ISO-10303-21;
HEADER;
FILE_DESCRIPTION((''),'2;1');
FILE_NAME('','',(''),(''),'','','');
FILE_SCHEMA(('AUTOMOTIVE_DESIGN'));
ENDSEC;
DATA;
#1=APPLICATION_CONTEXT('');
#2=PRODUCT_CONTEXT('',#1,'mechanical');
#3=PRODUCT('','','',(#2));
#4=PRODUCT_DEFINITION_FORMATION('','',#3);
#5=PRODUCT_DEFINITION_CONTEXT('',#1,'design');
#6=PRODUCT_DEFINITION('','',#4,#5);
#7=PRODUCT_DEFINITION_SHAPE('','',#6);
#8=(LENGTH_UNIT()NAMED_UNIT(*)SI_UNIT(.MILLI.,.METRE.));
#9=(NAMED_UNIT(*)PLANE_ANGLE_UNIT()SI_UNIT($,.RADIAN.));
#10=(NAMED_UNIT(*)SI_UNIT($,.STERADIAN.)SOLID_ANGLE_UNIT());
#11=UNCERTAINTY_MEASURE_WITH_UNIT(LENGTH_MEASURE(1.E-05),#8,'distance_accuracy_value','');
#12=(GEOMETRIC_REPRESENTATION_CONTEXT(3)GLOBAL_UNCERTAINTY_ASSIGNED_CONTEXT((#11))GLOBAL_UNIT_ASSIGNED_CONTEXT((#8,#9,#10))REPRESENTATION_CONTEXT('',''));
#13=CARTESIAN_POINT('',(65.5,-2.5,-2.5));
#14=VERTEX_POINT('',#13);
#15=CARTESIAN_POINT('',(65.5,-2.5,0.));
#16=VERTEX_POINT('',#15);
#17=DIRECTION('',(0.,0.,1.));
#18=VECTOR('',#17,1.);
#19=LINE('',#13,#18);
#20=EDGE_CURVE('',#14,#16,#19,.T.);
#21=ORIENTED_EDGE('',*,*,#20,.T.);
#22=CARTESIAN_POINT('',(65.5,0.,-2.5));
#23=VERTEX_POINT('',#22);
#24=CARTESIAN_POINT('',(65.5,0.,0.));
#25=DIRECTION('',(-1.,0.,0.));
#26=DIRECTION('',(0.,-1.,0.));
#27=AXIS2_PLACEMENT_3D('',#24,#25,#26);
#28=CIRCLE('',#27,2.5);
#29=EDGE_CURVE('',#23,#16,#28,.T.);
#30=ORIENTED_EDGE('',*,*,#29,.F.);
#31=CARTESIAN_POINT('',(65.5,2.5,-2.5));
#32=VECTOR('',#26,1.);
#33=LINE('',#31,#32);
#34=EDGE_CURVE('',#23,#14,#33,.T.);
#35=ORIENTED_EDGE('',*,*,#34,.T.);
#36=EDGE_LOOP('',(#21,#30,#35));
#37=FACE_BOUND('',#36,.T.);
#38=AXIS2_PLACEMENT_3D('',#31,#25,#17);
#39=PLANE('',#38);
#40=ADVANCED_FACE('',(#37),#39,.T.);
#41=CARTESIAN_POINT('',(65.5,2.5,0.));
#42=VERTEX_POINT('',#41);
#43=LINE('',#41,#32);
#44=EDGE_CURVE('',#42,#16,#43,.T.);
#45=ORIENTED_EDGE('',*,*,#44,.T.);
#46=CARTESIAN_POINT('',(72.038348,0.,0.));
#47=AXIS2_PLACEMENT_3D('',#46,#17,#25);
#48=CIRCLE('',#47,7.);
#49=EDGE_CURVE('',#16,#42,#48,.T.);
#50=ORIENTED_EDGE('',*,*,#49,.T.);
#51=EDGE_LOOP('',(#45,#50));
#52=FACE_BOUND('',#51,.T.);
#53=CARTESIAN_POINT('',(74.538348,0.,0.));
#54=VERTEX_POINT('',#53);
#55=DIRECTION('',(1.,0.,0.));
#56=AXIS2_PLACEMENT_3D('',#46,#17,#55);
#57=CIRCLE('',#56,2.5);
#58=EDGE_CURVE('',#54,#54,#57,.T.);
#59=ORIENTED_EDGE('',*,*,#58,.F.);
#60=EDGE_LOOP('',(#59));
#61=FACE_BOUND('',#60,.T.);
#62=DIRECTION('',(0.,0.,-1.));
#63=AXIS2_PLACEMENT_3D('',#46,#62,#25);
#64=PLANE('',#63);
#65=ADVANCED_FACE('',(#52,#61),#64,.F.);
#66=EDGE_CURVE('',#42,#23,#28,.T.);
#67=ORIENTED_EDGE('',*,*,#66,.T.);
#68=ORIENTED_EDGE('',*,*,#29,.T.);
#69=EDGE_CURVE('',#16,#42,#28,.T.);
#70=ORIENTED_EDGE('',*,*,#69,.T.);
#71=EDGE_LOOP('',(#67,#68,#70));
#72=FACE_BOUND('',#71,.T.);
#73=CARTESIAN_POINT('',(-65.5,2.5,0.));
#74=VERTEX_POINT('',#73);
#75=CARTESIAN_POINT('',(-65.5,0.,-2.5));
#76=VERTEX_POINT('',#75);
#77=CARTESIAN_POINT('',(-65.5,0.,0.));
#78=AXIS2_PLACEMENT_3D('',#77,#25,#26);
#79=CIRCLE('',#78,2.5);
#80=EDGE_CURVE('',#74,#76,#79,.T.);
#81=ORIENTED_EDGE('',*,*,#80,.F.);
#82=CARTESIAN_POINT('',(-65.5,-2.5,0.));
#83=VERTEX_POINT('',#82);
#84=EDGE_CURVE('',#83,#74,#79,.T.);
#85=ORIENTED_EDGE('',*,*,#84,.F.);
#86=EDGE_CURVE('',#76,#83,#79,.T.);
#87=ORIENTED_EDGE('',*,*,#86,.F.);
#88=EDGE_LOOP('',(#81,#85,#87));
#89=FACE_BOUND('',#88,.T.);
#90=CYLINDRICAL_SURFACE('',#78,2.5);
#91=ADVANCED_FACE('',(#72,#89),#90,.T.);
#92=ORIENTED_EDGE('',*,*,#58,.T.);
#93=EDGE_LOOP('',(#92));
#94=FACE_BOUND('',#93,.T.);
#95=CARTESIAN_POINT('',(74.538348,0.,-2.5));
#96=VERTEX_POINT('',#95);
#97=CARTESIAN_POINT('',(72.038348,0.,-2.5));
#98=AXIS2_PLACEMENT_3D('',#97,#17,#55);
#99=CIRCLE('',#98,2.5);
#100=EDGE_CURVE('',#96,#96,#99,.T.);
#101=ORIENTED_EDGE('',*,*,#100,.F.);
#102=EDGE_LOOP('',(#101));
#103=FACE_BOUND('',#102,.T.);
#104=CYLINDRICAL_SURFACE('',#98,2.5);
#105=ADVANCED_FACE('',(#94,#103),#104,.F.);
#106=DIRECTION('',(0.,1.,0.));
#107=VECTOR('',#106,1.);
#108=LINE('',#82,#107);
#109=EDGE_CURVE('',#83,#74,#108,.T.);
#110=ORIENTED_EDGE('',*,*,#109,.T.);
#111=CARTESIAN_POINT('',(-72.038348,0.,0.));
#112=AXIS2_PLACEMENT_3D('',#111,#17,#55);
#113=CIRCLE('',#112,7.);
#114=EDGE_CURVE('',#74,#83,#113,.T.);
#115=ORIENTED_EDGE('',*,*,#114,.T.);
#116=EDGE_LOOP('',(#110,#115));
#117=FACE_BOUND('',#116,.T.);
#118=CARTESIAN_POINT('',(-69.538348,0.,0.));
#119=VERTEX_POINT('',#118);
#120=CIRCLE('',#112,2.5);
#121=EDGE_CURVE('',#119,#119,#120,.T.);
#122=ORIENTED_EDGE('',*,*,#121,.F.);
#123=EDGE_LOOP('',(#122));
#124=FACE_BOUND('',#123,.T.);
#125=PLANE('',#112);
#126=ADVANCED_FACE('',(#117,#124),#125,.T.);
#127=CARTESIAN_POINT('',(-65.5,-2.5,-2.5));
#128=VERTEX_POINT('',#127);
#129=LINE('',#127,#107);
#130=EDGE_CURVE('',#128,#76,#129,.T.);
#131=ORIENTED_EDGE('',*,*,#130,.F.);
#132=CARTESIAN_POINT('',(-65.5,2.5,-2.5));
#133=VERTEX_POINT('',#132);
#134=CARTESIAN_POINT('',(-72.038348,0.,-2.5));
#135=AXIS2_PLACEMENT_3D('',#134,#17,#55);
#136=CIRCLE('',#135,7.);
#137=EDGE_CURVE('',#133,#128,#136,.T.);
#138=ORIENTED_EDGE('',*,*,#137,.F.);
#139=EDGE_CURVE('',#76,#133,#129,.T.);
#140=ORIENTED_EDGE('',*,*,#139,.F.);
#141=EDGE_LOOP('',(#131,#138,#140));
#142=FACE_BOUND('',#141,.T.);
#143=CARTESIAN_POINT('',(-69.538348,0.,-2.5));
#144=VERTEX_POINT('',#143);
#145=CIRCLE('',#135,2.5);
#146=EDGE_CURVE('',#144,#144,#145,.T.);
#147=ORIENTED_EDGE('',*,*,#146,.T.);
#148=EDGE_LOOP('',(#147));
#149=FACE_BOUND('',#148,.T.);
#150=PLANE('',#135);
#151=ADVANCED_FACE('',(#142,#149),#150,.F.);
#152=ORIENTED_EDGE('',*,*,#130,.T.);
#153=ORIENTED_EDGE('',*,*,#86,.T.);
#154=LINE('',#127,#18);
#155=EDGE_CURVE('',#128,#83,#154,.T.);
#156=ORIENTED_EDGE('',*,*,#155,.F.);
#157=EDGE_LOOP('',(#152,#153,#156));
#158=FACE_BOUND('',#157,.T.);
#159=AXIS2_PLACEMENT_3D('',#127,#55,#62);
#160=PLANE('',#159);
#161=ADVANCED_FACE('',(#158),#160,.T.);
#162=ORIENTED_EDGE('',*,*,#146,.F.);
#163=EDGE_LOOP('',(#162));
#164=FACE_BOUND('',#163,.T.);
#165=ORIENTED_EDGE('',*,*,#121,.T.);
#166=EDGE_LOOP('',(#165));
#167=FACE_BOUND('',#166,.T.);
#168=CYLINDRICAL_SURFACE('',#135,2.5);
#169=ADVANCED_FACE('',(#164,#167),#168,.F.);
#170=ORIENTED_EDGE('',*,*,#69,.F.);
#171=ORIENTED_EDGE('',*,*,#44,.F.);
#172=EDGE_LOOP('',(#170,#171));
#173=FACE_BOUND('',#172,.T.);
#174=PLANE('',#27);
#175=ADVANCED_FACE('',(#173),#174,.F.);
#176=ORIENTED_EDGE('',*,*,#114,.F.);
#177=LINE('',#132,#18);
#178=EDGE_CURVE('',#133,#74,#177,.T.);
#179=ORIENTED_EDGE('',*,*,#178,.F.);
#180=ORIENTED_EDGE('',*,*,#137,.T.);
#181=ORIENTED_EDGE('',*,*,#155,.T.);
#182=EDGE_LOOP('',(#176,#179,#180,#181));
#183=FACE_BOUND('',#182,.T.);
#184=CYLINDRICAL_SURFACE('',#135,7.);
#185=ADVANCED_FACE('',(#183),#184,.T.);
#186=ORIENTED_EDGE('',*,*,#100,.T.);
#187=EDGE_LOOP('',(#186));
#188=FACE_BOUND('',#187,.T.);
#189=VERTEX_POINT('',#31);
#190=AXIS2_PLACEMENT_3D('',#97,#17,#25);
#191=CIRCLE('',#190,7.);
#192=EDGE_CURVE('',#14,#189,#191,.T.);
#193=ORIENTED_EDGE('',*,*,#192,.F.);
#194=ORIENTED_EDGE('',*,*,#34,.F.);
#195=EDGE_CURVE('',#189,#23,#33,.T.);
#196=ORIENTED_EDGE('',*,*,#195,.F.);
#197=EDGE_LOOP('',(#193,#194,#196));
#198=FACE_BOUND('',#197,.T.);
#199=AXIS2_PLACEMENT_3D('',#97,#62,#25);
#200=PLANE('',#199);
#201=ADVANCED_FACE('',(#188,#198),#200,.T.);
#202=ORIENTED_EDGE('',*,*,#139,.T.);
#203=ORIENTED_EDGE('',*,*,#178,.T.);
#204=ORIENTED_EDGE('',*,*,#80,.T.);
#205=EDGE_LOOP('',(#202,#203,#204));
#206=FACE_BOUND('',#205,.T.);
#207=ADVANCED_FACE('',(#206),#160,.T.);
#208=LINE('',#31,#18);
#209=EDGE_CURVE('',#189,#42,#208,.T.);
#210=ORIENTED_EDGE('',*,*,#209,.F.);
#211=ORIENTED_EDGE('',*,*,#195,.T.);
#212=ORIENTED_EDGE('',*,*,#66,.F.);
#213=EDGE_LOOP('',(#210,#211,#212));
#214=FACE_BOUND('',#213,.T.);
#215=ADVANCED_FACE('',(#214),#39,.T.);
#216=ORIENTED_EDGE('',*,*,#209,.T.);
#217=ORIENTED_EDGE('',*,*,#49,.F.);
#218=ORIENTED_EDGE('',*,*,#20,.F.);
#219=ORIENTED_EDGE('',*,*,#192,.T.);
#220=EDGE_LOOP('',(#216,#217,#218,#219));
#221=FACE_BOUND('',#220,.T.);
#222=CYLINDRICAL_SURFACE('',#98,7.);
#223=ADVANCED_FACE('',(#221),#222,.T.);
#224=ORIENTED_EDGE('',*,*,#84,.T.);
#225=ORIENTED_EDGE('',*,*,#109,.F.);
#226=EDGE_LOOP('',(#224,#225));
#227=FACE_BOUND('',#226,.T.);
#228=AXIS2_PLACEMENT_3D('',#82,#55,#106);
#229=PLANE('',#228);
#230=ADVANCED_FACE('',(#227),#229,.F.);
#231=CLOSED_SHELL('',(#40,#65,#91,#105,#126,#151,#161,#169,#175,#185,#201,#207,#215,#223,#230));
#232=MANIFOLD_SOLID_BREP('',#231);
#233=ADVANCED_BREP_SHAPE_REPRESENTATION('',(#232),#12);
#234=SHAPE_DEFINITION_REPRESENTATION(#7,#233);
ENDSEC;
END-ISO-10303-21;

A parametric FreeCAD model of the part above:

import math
import FreeCAD as App
import Part
import Sketcher

doc = App.newDocument("Part")
body = doc.addObject("PartDesign::Body", "Body")

# Sketch on XY plane
sketch1 = body.newObject("Sketcher::SketchObject", "Sketch")
sketch1.AttachmentSupport = (doc.getObject("XY_Plane"), [""])
sketch1.MapMode = "FlatFace"
sketch1.addGeometry([
    Part.LineSegment(App.Vector(-65.5, 2.5, 0), App.Vector(-65.5, 0, 0)),
    Part.LineSegment(App.Vector(-65.5, 0, 0), App.Vector(65.5, 0, 0)),
    Part.LineSegment(App.Vector(65.5, 0, 0), App.Vector(65.5, 2.5, 0)),
    Part.LineSegment(App.Vector(65.5, 2.5, 0), App.Vector(-65.5, 2.5, 0)),
], False)
sketch1.addConstraint([
    Sketcher.Constraint("Coincident", 0, 2, 1, 1),
    Sketcher.Constraint("Coincident", 1, 2, 2, 1),
    Sketcher.Constraint("Coincident", 2, 2, 3, 1),
    Sketcher.Constraint("Coincident", 3, 2, 0, 1),
    Sketcher.Constraint("Vertical", 0),
    Sketcher.Constraint("Horizontal", 1),
    Sketcher.Constraint("Vertical", 2),
    Sketcher.Constraint("Horizontal", 3),
    Sketcher.Constraint("Symmetric", 0, 2, 1, 2, -1, 1),
    Sketcher.Constraint("DistanceX", 1, 1, 1, 2, 131.0),
    Sketcher.Constraint("DistanceY", 0, 2, 0, 1, 2.5),
])
revolution = body.newObject("PartDesign::Revolution", "Revolution")
revolution.Profile = sketch1
revolution.ReferenceAxis = (sketch1, ["H_Axis"])
revolution.Angle = 360

# Sketch on XY plane
sketch2 = body.newObject("Sketcher::SketchObject", "Sketch001")
sketch2.AttachmentSupport = (doc.getObject("XY_Plane"), [""])
sketch2.MapMode = "FlatFace"
sketch2.addGeometry([
    Part.LineSegment(App.Vector(65.5, 2.5, 0), App.Vector(65.5, -2.5, 0)),  # 0
    Part.ArcOfCircle(Part.Circle(App.Vector(72.038348, 0, 0), App.Vector(0, 0, 1), 7), math.radians(-159.075168), math.radians(159.075168)),  # 1
    Part.Circle(App.Vector(72.038348, 0, 0), App.Vector(0, 0, 1), 2.5),  # 2
    Part.LineSegment(App.Vector(-65.5, -2.5, 0), App.Vector(-65.5, 2.5, 0)),  # 3
    Part.ArcOfCircle(Part.Circle(App.Vector(-72.038348, 0, 0), App.Vector(0, 0, 1), 7), math.radians(20.924832), math.radians(339.075168)),  # 4
    Part.Circle(App.Vector(-72.038348, 0, 0), App.Vector(0, 0, 1), 2.5),  # 5
], False)
sketch2.addConstraint([
    Sketcher.Constraint("Coincident", 0, 1, 1, 2),
    Sketcher.Constraint("Coincident", 1, 1, 0, 2),
    Sketcher.Constraint("Coincident", 3, 1, 4, 2),
    Sketcher.Constraint("Coincident", 4, 1, 3, 2),
    Sketcher.Constraint("Vertical", 0),
    Sketcher.Constraint("Vertical", 3),
    Sketcher.Constraint("Coincident", 2, 3, 1, 3),
    Sketcher.Constraint("Coincident", 5, 3, 4, 3),
    Sketcher.Constraint("Equal", 1, 4),
    Sketcher.Constraint("Equal", 2, 5),
    Sketcher.Constraint("Symmetric", 1, 3, 4, 3, -1, 1),
    Sketcher.Constraint("Symmetric", 1, 1, 3, 1, -2),
    Sketcher.Constraint("Diameter", 2, 5.0),
    Sketcher.Constraint("Radius", 1, 7.0),
    Sketcher.Constraint("DistanceY", 0, 2, 0, 1, 5.0),
    Sketcher.Constraint("DistanceX", 3, 1, 1, 1, 131.0),
])
pad1 = body.newObject("PartDesign::Pad", "Pad")
pad1.Profile = sketch2
pad1.Length = 2.5
pad1.Reversed = True

doc.recompute()
